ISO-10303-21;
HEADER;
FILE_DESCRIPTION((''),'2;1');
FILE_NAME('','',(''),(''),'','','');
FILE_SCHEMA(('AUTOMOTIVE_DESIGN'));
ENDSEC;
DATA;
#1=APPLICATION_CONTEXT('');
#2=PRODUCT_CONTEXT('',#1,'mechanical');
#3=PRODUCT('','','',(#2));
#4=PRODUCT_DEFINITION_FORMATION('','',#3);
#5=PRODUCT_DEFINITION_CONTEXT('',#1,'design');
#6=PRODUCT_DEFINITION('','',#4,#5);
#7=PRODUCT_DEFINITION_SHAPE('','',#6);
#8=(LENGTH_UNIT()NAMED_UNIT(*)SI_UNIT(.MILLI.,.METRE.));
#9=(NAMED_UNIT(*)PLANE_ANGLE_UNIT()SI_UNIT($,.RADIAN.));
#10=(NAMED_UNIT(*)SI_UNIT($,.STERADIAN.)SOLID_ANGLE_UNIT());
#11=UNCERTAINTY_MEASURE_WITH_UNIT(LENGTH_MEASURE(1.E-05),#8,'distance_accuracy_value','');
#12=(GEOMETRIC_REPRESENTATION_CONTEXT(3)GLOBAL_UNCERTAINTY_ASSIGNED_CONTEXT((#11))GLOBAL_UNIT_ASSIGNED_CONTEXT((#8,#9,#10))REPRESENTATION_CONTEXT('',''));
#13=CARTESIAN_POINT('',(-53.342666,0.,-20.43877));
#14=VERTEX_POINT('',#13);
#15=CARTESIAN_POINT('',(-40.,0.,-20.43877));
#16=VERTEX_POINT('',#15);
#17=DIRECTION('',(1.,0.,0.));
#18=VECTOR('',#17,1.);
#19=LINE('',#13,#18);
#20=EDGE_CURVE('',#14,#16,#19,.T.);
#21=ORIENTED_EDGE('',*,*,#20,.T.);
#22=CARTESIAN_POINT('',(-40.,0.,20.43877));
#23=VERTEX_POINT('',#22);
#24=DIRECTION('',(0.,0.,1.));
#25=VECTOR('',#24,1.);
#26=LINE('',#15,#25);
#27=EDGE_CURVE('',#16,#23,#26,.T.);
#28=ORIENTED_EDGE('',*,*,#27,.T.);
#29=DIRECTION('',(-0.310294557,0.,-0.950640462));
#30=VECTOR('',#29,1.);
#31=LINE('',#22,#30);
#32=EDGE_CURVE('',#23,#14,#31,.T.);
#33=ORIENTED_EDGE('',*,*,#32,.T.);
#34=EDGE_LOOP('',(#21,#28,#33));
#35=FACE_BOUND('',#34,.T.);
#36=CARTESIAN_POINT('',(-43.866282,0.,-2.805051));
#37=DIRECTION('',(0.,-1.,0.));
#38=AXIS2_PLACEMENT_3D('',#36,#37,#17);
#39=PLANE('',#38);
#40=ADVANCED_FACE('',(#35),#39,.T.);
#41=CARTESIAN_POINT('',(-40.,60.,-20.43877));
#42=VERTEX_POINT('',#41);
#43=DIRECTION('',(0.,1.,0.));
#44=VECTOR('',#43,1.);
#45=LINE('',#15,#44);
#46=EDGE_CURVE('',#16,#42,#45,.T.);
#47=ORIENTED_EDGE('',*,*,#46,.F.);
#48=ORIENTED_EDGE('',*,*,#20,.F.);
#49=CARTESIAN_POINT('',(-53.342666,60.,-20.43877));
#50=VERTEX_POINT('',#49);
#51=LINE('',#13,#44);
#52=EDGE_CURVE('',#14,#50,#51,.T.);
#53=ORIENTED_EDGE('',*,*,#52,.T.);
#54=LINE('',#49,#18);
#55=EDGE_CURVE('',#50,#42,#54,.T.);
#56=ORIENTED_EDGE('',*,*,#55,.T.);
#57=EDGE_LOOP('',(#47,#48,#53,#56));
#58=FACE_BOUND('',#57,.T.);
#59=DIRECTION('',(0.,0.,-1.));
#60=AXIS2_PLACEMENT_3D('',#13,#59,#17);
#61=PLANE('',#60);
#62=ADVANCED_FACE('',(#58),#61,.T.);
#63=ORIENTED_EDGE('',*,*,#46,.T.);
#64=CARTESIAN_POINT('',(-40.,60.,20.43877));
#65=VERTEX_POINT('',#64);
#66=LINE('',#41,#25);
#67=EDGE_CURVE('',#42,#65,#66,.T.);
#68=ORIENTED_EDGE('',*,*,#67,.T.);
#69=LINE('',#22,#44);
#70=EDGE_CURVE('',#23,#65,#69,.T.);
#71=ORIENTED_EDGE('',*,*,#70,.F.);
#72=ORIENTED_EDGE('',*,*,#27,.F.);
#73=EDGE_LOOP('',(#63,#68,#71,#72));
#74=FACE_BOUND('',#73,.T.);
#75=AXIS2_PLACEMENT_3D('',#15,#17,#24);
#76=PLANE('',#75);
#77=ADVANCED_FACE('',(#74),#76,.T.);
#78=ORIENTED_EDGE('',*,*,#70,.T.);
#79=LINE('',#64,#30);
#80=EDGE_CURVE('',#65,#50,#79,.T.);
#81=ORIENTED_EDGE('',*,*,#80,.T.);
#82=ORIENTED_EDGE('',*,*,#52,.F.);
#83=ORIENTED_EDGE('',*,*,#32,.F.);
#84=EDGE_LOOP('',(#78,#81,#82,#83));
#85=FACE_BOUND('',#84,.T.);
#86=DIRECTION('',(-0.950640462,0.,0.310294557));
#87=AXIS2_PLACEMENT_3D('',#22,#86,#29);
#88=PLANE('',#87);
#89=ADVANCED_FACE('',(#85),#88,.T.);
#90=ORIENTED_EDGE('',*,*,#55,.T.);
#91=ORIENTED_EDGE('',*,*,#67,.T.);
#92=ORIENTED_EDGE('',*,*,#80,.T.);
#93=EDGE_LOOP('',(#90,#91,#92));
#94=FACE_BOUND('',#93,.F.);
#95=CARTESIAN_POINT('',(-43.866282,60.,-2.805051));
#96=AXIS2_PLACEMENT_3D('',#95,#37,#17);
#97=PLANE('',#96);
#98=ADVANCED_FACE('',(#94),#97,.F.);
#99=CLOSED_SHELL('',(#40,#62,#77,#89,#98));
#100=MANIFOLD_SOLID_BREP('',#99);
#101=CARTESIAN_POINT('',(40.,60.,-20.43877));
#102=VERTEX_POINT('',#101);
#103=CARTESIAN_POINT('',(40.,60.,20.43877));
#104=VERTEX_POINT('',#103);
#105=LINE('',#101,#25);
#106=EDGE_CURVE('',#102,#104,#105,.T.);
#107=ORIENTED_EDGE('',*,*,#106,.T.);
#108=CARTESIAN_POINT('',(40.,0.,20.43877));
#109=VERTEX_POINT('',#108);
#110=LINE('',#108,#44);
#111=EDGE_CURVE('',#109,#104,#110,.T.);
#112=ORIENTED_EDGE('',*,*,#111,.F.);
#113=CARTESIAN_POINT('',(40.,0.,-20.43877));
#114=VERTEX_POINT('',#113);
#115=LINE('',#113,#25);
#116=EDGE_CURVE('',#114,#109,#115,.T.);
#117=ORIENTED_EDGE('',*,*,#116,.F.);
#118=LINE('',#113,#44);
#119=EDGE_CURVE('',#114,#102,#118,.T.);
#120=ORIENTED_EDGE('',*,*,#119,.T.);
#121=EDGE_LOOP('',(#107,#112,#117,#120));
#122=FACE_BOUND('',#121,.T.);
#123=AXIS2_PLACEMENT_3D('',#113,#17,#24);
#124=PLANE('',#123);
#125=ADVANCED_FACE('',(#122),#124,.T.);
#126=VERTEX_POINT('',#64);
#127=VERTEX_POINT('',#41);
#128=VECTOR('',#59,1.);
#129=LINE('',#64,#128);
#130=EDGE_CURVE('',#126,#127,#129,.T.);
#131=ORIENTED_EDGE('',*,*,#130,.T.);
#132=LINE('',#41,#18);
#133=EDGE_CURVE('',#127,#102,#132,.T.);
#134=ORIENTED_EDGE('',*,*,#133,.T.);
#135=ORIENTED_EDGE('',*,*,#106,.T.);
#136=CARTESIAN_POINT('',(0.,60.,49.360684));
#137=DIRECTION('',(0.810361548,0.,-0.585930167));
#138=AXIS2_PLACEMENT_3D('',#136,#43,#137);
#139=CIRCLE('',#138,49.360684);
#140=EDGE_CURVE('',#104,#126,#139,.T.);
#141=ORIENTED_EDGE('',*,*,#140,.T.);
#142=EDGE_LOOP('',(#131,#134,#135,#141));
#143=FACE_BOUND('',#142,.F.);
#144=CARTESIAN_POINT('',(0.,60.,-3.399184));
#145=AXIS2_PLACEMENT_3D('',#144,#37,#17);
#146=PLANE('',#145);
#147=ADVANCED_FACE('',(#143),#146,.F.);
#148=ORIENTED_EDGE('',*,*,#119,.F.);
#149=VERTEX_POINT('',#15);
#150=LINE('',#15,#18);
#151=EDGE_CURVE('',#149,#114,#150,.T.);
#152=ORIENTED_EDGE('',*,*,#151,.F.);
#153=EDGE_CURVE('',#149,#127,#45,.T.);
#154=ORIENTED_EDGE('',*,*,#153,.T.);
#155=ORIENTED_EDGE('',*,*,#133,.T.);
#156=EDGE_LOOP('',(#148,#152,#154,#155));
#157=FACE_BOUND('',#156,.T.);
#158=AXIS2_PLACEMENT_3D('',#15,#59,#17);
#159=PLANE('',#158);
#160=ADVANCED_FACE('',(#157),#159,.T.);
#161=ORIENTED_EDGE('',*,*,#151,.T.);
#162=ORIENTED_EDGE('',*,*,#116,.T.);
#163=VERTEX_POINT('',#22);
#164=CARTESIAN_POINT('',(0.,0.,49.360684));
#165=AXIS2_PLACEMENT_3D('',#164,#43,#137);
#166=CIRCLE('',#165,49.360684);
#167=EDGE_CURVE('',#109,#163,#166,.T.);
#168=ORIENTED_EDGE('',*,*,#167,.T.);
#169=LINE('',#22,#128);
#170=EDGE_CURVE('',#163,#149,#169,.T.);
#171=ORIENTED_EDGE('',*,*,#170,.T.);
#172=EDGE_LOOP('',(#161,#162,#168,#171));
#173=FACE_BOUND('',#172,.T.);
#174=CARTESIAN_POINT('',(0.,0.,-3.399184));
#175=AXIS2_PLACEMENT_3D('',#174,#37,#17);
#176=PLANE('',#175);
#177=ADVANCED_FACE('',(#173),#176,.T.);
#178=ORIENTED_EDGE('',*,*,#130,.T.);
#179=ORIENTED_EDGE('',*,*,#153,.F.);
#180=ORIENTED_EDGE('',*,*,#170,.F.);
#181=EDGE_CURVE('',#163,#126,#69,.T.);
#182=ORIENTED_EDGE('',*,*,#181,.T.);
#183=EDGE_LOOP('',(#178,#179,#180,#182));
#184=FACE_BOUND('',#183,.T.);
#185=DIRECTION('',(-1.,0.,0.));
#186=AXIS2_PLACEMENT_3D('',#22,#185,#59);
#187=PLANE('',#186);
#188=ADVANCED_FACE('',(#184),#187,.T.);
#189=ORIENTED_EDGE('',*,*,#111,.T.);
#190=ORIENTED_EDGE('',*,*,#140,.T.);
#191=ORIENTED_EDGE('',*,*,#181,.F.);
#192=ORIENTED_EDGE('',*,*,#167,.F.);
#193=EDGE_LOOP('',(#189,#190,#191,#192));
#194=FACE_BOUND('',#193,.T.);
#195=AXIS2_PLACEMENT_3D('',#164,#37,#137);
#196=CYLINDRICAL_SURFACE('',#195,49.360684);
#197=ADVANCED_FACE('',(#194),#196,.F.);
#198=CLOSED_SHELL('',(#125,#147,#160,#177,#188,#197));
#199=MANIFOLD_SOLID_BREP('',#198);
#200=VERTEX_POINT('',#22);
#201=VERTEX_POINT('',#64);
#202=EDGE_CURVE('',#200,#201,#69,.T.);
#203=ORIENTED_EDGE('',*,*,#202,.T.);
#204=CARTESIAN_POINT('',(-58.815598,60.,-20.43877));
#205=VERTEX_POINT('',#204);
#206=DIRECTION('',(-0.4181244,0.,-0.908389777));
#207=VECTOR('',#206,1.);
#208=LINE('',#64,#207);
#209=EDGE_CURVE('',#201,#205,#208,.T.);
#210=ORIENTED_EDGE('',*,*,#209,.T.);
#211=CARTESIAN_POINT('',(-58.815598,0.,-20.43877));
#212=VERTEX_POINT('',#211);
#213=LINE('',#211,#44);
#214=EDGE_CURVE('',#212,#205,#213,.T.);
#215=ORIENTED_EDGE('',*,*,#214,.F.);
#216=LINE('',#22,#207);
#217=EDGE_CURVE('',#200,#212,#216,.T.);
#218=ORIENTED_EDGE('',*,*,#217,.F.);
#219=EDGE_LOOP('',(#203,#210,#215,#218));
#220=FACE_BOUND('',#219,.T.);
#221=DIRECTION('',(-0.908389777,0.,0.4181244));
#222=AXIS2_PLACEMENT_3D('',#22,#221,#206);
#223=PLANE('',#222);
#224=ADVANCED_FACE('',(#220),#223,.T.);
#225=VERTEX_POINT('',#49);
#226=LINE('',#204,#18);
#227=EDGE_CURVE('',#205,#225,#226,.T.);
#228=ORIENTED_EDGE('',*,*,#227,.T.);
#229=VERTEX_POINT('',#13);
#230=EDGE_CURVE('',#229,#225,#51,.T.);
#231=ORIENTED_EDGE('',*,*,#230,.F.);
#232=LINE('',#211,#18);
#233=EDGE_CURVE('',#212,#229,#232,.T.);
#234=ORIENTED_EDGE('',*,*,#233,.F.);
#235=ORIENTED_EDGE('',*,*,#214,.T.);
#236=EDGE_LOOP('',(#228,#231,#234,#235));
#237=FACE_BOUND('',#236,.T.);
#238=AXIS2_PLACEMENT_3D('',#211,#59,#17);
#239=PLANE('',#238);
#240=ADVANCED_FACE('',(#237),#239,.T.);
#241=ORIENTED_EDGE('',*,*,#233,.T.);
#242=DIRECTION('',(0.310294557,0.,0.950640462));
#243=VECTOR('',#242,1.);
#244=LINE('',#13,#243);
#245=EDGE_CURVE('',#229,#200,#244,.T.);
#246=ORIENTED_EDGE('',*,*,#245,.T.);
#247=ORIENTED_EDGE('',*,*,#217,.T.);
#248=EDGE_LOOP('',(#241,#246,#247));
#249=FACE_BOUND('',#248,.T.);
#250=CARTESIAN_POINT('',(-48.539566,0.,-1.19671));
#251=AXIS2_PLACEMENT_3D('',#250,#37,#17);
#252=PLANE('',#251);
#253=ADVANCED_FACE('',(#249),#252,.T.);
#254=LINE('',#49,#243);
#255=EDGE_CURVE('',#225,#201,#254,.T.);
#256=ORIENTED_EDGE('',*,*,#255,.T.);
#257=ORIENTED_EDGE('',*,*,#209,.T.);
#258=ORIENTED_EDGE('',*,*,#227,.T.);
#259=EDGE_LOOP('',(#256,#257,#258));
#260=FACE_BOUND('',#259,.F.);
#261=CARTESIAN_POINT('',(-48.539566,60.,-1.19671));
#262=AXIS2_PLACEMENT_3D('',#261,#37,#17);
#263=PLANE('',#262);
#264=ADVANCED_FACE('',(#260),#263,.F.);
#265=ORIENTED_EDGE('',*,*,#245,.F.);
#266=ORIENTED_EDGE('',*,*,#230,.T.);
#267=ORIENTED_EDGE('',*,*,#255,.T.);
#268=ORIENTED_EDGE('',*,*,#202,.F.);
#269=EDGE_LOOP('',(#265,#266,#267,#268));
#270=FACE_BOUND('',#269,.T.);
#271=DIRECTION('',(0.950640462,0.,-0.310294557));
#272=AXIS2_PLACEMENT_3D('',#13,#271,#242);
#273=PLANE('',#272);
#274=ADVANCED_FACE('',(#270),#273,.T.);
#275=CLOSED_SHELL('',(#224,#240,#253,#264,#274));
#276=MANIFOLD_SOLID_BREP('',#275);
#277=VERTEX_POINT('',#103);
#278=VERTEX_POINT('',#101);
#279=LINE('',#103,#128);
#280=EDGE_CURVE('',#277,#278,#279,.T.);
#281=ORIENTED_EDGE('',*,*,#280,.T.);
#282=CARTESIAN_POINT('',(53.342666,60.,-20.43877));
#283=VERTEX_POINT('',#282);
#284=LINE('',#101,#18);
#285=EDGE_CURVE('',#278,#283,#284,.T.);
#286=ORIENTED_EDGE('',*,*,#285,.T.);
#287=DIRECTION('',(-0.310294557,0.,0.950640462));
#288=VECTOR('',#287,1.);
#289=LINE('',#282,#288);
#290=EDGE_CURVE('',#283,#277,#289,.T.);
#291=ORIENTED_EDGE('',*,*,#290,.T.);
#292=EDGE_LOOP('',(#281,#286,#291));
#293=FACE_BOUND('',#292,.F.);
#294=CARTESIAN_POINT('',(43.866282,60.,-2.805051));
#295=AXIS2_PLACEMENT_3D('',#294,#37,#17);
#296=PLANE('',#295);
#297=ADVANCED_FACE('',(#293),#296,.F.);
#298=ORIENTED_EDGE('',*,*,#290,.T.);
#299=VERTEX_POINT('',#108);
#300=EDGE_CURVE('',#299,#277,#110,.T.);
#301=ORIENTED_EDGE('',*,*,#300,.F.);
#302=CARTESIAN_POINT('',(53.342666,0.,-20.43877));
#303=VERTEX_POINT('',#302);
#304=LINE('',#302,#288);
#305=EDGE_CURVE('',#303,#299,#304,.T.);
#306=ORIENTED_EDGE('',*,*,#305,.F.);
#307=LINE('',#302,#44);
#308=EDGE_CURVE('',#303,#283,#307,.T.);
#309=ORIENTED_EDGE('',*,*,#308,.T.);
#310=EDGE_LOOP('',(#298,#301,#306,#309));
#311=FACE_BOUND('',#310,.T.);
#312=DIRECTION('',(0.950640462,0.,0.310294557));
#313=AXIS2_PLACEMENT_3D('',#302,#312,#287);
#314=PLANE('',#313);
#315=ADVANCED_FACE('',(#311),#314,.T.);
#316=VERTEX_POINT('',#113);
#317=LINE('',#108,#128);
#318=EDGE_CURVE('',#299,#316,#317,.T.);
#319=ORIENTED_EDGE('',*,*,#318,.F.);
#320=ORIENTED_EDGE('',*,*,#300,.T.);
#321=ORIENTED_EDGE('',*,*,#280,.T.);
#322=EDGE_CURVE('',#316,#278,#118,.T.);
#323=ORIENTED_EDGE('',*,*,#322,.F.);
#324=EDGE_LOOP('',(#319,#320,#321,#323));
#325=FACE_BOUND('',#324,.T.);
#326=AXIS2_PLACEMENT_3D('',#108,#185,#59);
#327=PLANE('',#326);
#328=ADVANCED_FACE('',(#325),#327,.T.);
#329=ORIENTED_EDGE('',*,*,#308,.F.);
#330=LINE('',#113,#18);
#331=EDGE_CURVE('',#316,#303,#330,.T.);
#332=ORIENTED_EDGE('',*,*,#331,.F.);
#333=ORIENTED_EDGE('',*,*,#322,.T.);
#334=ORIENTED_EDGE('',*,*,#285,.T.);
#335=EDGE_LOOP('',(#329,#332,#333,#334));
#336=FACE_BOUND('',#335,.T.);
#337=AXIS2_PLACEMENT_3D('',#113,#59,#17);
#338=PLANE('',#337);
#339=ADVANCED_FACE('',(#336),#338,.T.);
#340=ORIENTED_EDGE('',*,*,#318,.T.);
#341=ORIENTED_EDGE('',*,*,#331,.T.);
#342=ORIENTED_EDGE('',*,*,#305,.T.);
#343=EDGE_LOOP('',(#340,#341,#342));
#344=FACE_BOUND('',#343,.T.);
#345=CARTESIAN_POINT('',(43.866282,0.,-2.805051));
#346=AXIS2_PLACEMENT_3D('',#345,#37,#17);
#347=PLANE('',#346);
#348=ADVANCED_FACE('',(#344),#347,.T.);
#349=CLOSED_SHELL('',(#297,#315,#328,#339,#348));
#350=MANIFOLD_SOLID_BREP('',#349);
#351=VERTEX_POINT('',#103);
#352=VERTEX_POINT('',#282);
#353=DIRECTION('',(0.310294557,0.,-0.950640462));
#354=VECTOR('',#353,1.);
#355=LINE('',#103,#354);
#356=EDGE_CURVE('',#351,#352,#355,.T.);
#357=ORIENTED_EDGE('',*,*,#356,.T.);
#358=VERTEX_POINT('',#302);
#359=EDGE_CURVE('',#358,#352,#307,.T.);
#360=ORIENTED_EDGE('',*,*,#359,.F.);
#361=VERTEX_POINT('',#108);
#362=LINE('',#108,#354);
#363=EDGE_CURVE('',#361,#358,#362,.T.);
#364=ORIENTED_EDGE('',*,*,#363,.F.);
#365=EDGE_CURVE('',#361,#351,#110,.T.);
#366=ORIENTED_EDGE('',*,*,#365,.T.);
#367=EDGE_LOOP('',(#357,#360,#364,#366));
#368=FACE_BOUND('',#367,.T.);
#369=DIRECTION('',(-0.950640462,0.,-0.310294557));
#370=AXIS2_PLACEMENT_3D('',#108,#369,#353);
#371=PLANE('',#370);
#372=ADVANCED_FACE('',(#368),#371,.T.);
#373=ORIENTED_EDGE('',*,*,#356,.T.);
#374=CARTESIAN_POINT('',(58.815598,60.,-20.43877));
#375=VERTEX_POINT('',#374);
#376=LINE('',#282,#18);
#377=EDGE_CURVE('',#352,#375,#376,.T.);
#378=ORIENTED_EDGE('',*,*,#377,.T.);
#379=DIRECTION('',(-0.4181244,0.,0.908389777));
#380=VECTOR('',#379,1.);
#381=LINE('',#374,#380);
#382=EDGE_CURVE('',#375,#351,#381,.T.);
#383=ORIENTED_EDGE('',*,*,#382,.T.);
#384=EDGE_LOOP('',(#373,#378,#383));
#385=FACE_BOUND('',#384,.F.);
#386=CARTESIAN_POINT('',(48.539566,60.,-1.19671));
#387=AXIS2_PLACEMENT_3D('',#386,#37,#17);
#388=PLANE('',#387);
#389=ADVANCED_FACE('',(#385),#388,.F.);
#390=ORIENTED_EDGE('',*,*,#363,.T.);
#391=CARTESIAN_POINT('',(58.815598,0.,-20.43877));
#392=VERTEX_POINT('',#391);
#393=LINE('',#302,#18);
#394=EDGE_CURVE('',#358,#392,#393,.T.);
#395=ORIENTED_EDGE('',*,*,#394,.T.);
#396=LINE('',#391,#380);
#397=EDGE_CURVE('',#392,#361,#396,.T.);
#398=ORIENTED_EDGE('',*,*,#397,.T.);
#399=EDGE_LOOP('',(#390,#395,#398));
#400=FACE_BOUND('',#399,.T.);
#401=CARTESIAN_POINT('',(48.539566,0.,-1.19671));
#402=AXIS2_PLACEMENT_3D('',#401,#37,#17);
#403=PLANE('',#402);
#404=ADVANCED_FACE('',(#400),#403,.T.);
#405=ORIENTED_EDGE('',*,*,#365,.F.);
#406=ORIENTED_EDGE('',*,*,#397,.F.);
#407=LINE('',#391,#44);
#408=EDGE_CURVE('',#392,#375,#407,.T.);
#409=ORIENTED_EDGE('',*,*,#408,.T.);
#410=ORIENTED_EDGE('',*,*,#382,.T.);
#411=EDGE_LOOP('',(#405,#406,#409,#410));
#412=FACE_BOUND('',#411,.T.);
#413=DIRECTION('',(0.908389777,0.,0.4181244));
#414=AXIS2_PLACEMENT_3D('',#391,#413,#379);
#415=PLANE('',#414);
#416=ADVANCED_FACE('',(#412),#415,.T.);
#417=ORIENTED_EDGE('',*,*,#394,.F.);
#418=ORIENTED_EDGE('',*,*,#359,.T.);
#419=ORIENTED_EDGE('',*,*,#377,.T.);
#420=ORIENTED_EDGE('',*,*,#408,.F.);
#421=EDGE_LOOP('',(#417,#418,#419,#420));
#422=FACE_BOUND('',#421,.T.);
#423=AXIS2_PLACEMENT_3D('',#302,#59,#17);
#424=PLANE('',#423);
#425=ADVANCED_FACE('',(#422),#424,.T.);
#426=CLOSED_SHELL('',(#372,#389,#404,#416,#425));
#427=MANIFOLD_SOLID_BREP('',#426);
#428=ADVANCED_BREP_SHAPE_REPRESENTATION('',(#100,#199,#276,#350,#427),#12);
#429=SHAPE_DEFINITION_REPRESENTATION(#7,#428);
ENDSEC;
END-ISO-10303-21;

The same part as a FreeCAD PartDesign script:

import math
import FreeCAD as App
import Part
import Sketcher

doc = App.newDocument("Part")
params = doc.addObject("Spreadsheet::Sheet", "Params")
for row, (alias, value) in enumerate([
    ("sketch1_width", "80 mm"),
    ("pad1_length", "60 mm"),
    ("sketch2_length", "43 mm"),
    ("sketch2_length2", "45 mm"),
    ("pad2_length", "60 mm"),
    ("sketch3_length", "43 mm"),
    ("pad3_length", "60 mm"),
], start=1):
    params.set(f"A{row}", alias)
    params.set(f"B{row}", "=" + value)
    params.setAlias(f"B{row}", alias)

body = doc.addObject("PartDesign::Body", "Body")

# Sketch on XZ plane
sketch1 = doc.addObject("Sketcher::SketchObject", "Sketch")
body.addObject(sketch1)
sketch1.AttachmentSupport = (doc.XZ_Plane, [""])
sketch1.MapMode = "FlatFace"
sketch1.addGeometry(Part.LineSegment(App.Vector(-40, -20, 0), App.Vector(40, -20, 0)), False)
sketch1.addGeometry(Part.LineSegment(App.Vector(40, -20, 0), App.Vector(40, 20, 0)), False)
sketch1.addGeometry(Part.ArcOfCircle(Part.Circle(App.Vector(0, 49, 0), App.Vector(0, 0, 1), 49), math.radians(-144), math.radians(-36)), False)
sketch1.addGeometry(Part.LineSegment(App.Vector(-40, 20, 0), App.Vector(-40, -20, 0)), False)
sketch1.addConstraint(Sketcher.Constraint("Coincident", 0, 2, 1, 1))
sketch1.addConstraint(Sketcher.Constraint("Coincident", 1, 2, 2, 2))
sketch1.addConstraint(Sketcher.Constraint("Coincident", 2, 1, 3, 1))
sketch1.addConstraint(Sketcher.Constraint("Coincident", 3, 2, 0, 1))
sketch1.addConstraint(Sketcher.Constraint("Horizontal", 0))
sketch1.addConstraint(Sketcher.Constraint("Vertical", 1))
sketch1.addConstraint(Sketcher.Constraint("Vertical", 3))
sketch1.addConstraint(Sketcher.Constraint("Symmetric", 0, 2, 2, 1, -1, 1))
sketch1.addConstraint(Sketcher.Constraint("PointOnObject", 2, 3, -2))
sketch1.addConstraint(Sketcher.Constraint("DistanceX", 0, 1, 0, 2, 80.0))
sketch1.addConstraint(Sketcher.Constraint("Radius", 2, 49.360684))
sketch1.addConstraint(Sketcher.Constraint("DistanceY", 1, 1, 1, 2, 40.87754))
sketch1.setExpression("Constraints[9]", "Params.sketch1_width")
pad1 = doc.addObject("PartDesign::Pad", "Pad")
body.addObject(pad1)
pad1.Profile = sketch1
pad1.setExpression("Length", "Params.pad1_length")
pad1.Reversed = True
body2 = doc.addObject("PartDesign::Body", "Body001")
body2.AllowCompound = True

# Sketch on XZ plane
sketch2 = doc.addObject("Sketcher::SketchObject", "Sketch001")
body2.addObject(sketch2)
sketch2.AttachmentSupport = (doc.getObject("XZ_Plane001"), [""])
sketch2.MapMode = "FlatFace"
sketch2.addGeometry(Part.LineSegment(App.Vector(-53, -20, 0), App.Vector(-40, 20, 0)), False)
sketch2.addGeometry(Part.LineSegment(App.Vector(-40, 20, 0), App.Vector(-59, -20, 0)), False)
sketch2.addGeometry(Part.LineSegment(App.Vector(-59, -20, 0), App.Vector(-53, -20, 0)), False)
sketch2.addGeometry(Part.LineSegment(App.Vector(59, -20, 0), App.Vector(40, 20, 0)), False)
sketch2.addGeometry(Part.LineSegment(App.Vector(40, 20, 0), App.Vector(53, -20, 0)), False)
sketch2.addGeometry(Part.LineSegment(App.Vector(53, -20, 0), App.Vector(59, -20, 0)), False)
sketch2.addConstraint(Sketcher.Constraint("Coincident", 0, 2, 1, 1))
sketch2.addConstraint(Sketcher.Constraint("Coincident", 1, 2, 2, 1))
sketch2.addConstraint(Sketcher.Constraint("Coincident", 2, 2, 0, 1))
sketch2.addConstraint(Sketcher.Constraint("Coincident", 3, 2, 4, 1))
sketch2.addConstraint(Sketcher.Constraint("Coincident", 4, 2, 5, 1))
sketch2.addConstraint(Sketcher.Constraint("Coincident", 5, 2, 3, 1))
sketch2.addConstraint(Sketcher.Constraint("Horizontal", 2))
sketch2.addConstraint(Sketcher.Constraint("Horizontal", 5))
sketch2.addConstraint(Sketcher.Constraint("Symmetric", 0, 2, 3, 2, -2))
sketch2.addConstraint(Sketcher.Constraint("Symmetric", 2, 2, 4, 2, -2))
sketch2.addConstraint(Sketcher.Constraint("Equal", 2, 5))
sketch2.addConstraint(Sketcher.Constraint("Distance", 0, 43.0))
sketch2.addConstraint(Sketcher.Constraint("Distance", 1, 45.0))
sketch2.addConstraint(Sketcher.Constraint("DistanceX", 0, 2, -1, 1, 40.0))
sketch2.addConstraint(Sketcher.Constraint("DistanceX", 1, 2, 0, 2, 18.815598))
sketch2.addConstraint(Sketcher.Constraint("DistanceY", -1, 1, 0, 2, 20.43877))
sketch2.setExpression("Constraints[11]", "Params.sketch2_length")
sketch2.setExpression("Constraints[12]", "Params.sketch2_length2")
pad2 = doc.addObject("PartDesign::Pad", "Pad001")
body2.addObject(pad2)
pad2.Profile = sketch2
pad2.setExpression("Length", "Params.pad2_length")
pad2.Reversed = True
body3 = doc.addObject("PartDesign::Body", "Body002")
body3.AllowCompound = True

# Sketch on XZ plane
sketch3 = doc.addObject("Sketcher::SketchObject", "Sketch002")
body3.addObject(sketch3)
sketch3.AttachmentSupport = (doc.getObject("XZ_Plane002"), [""])
sketch3.MapMode = "FlatFace"
sketch3.addGeometry(Part.LineSegment(App.Vector(-53, -20, 0), App.Vector(-40, -20, 0)), False)
sketch3.addGeometry(Part.LineSegment(App.Vector(-40, -20, 0), App.Vector(-40, 20, 0)), False)
sketch3.addGeometry(Part.LineSegment(App.Vector(-40, 20, 0), App.Vector(-53, -20, 0)), False)
sketch3.addGeometry(Part.LineSegment(App.Vector(40, 20, 0), App.Vector(40, -20, 0)), False)
sketch3.addGeometry(Part.LineSegment(App.Vector(40, -20, 0), App.Vector(53, -20, 0)), False)
sketch3.addGeometry(Part.LineSegment(App.Vector(53, -20, 0), App.Vector(40, 20, 0)), False)
sketch3.addConstraint(Sketcher.Constraint("Coincident", 0, 2, 1, 1))
sketch3.addConstraint(Sketcher.Constraint("Coincident", 1, 2, 2, 1))
sketch3.addConstraint(Sketcher.Constraint("Coincident", 2, 2, 0, 1))
sketch3.addConstraint(Sketcher.Constraint("Coincident", 3, 2, 4, 1))
sketch3.addConstraint(Sketcher.Constraint("Coincident", 4, 2, 5, 1))
sketch3.addConstraint(Sketcher.Constraint("Coincident", 5, 2, 3, 1))
sketch3.addConstraint(Sketcher.Constraint("Horizontal", 0))
sketch3.addConstraint(Sketcher.Constraint("Vertical", 1))
sketch3.addConstraint(Sketcher.Constraint("Vertical", 3))
sketch3.addConstraint(Sketcher.Constraint("Horizontal", 4))
sketch3.addConstraint(Sketcher.Constraint("Symmetric", 1, 2, 3, 2, -1, 1))
sketch3.addConstraint(Sketcher.Constraint("Symmetric", 2, 2, 4, 2, -2))
sketch3.addConstraint(Sketcher.Constraint("Horizontal", 1, 2, 5, 2))
sketch3.addConstraint(Sketcher.Constraint("Distance", 2, 43.0))
sketch3.addConstraint(Sketcher.Constraint("DistanceX", 0, 2, -1, 1, 40.0))
sketch3.addConstraint(Sketcher.Constraint("DistanceY", 1, 1, 1, 2, 40.87754))
sketch3.setExpression("Constraints[13]", "Params.sketch3_length")
pad3 = doc.addObject("PartDesign::Pad", "Pad002")
body3.addObject(pad3)
pad3.Profile = sketch3
pad3.setExpression("Length", "Params.pad3_length")
pad3.Reversed = True

doc.recompute()
